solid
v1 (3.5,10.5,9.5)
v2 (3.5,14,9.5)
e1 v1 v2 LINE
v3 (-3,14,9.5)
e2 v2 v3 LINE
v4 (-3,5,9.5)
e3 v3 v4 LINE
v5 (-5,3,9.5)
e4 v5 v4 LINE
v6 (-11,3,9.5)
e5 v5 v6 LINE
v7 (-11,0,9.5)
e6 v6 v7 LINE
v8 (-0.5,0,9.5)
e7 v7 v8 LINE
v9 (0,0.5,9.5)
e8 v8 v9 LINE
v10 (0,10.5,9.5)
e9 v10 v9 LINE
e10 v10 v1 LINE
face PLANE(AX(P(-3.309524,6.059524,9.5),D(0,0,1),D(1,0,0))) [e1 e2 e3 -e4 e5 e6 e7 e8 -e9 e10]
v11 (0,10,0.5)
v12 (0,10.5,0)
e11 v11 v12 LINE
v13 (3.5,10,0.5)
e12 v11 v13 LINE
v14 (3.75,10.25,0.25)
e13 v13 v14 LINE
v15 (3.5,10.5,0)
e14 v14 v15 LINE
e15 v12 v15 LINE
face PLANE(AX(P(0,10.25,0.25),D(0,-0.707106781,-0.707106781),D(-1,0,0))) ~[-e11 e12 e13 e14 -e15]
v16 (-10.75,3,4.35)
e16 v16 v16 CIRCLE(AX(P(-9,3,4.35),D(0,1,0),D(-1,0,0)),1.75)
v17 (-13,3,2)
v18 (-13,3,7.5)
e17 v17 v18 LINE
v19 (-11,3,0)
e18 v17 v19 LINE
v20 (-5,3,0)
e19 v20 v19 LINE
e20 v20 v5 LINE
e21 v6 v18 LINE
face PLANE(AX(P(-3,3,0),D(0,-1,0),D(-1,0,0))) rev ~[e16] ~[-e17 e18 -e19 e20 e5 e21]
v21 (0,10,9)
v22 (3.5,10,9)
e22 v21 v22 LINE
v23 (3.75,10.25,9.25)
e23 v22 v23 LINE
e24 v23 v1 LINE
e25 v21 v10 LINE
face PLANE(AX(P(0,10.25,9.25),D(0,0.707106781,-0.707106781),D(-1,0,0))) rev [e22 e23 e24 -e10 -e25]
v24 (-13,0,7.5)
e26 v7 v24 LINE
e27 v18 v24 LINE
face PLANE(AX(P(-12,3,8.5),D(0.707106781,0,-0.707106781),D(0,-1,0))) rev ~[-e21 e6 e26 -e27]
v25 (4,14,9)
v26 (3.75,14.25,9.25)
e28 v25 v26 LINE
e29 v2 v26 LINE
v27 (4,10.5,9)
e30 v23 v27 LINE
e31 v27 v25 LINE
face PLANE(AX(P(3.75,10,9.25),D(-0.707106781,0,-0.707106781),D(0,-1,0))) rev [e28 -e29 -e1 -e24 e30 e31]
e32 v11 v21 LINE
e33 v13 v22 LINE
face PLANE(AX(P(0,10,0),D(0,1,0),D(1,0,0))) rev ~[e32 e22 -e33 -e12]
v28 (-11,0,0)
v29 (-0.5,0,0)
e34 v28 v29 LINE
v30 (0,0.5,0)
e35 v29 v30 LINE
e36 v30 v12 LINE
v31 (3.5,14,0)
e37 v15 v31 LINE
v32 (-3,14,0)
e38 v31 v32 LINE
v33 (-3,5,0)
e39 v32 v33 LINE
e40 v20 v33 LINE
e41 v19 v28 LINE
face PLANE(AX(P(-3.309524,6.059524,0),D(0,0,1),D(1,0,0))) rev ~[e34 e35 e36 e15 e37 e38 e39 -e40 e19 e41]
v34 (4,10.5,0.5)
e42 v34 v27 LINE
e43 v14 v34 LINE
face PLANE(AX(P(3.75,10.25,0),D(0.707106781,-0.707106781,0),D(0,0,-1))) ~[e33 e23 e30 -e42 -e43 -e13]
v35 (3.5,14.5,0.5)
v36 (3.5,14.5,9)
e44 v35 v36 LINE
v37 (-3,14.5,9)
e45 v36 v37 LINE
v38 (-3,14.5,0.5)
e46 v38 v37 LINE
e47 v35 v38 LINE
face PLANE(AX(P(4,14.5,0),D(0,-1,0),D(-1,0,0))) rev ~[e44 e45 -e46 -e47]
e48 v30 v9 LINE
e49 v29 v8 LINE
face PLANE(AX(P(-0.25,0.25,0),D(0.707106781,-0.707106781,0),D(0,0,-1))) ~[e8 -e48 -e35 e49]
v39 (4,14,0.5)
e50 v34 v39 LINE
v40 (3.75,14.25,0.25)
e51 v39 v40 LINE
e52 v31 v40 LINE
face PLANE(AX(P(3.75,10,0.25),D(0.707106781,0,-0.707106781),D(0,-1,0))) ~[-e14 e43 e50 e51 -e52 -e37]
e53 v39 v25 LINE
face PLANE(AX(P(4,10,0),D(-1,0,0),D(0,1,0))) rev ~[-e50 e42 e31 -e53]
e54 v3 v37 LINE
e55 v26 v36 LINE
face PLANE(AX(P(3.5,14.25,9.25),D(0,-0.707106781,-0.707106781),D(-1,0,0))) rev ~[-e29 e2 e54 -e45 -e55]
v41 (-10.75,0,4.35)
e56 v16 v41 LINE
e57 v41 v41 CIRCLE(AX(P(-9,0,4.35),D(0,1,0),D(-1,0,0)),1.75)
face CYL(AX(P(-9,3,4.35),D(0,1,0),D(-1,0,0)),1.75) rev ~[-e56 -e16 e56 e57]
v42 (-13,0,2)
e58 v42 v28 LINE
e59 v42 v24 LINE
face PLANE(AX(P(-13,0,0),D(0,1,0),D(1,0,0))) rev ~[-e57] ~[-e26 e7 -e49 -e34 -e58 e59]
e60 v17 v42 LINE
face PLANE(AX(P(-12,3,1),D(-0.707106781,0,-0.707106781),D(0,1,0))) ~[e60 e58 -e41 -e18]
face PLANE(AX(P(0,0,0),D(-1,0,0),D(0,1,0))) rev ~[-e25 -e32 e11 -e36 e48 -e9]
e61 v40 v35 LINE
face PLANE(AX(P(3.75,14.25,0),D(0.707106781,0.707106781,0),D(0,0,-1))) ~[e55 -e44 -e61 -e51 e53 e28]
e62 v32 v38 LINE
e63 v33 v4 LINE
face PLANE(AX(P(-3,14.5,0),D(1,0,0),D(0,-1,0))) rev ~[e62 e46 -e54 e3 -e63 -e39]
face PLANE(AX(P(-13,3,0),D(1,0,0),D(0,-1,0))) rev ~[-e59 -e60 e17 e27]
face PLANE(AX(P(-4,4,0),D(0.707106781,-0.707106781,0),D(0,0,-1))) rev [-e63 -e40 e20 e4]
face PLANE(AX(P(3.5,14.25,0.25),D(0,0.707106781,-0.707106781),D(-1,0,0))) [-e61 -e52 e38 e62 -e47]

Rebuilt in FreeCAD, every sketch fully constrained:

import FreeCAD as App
import Part
import Sketcher

V = App.Vector


def edges_at(feature, points):
    """Names of the edges that pass closest to the given points."""
    edges = feature.Shape.Edges
    near = lambda p: min(range(len(edges)), key=lambda i: edges[i].distToShape(Part.Vertex(*p))[0])
    return sorted({f"Edge{near(p) + 1}" for p in points})


def add_polygon(sketch, points):
    """Adds a closed chain of lines whose ends are joined by coincident constraints."""
    first, n = sketch.GeometryCount, len(points)
    for a, b in zip(points, points[1:] + points[:1]):
        sketch.addGeometry(Part.LineSegment(App.Vector(*a, 0), App.Vector(*b, 0)), False)
    for i in range(n):
        sketch.addConstraint(Sketcher.Constraint("Coincident", first + i, 2, first + (i + 1) % n, 1))

doc = App.newDocument("Part")
body = doc.addObject("PartDesign::Body", "Body")

sketch1 = body.newObject("Sketcher::SketchObject", "Sketch")
sketch1.AttachmentSupport = (doc.getObject("XY_Plane"), [""])
sketch1.MapMode = "FlatFace"
add_polygon(sketch1, [(-13, 0), (0, 0), (0, 10), (4, 10), (4, 14.5), (-3, 14.5), (-3, 3), (-13, 3)])
sketch1.addConstraint([
    Sketcher.Constraint("Horizontal", 0),
    Sketcher.Constraint("Vertical", 1),
    Sketcher.Constraint("Horizontal", 2),
    Sketcher.Constraint("Vertical", 3),
    Sketcher.Constraint("Horizontal", 4),
    Sketcher.Constraint("Vertical", 5),
    Sketcher.Constraint("Horizontal", 6),
    Sketcher.Constraint("Vertical", 7),
    Sketcher.Constraint("Coincident", 0, 2, -1, 1),
    Sketcher.Constraint("Equal", 6, 1),
    Sketcher.Constraint("DistanceX", 0, 1, 0, 2, 13.0),
    Sketcher.Constraint("DistanceX", 2, 1, 2, 2, 4.0),
    Sketcher.Constraint("DistanceX", 4, 2, 4, 1, 7.0),
    Sketcher.Constraint("DistanceY", 7, 2, 7, 1, 3.0),
    Sketcher.Constraint("DistanceY", 3, 1, 3, 2, 4.5),
])
pad1 = body.newObject("PartDesign::Pad", "Pad")
pad1.Profile = sketch1
pad1.Length = 9.5
doc.recompute()

chamfer = body.newObject("PartDesign::Chamfer", "Chamfer")
chamfer.Base = (pad1, edges_at(pad1, [
    (4, 10, 4.75),
    (4, 14.5, 4.75),
    (4, 12.25, 9.5),
    (4, 12.25, 0),
]))
chamfer.Size = 0.5
doc.recompute()

chamfer2 = body.newObject("PartDesign::Chamfer", "Chamfer001")
chamfer2.Base = (chamfer, edges_at(chamfer, [
    (1.75, 10, 0),
    (1.75, 10, 9.5),
    (0.25, 14.5, 9.5),
    (0.25, 14.5, 0),
]))
chamfer2.Size = 0.5
doc.recompute()

chamfer3 = body.newObject("PartDesign::Chamfer", "Chamfer002")
chamfer3.Base = (chamfer2, edges_at(chamfer2, [(-3, 3, 4.75)]))
chamfer3.Size = 2
doc.recompute()

chamfer4 = body.newObject("PartDesign::Chamfer", "Chamfer003")
chamfer4.Base = (chamfer3, edges_at(chamfer3, [(0, 0, 4.75)]))
chamfer4.Size = 0.5
doc.recompute()

chamfer5 = body.newObject("PartDesign::Chamfer", "Chamfer004")
chamfer5.Base = (chamfer4, edges_at(chamfer4, [(-13, 1.5, 0), (-13, 1.5, 9.5)]))
chamfer5.Size = 2

sketch2 = body.newObject("Sketcher::SketchObject", "Sketch001")
sketch2.AttachmentSupport = (doc.getObject("XZ_Plane"), [""])
sketch2.MapMode = "FlatFace"
sketch2.AttachmentOffset = App.Placement(V(0, 0, -3), App.Rotation())
sketch2.addGeometry(Part.Circle(V(-9, 4.35, 0), V(0, 0, 1), 1.75), False)
sketch2.addConstraint([
    Sketcher.Constraint("Diameter", 0, 3.5),
    Sketcher.Constraint("DistanceX", 0, 3, -1, 1, 9.0),
    Sketcher.Constraint("DistanceY", -1, 1, 0, 3, 4.35),
])
pocket1 = body.newObject("PartDesign::Pocket", "Pocket")
pocket1.Profile = sketch2
pocket1.Length = 5
pocket1.Reversed = True

doc.recompute()
